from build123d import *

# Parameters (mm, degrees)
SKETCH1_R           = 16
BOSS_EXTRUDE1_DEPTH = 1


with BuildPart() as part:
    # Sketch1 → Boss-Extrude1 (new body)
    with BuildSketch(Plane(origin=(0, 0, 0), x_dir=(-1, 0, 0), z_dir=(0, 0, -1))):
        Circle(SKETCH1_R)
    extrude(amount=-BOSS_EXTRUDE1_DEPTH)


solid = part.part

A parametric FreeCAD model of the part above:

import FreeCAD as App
import Part
import Sketcher
from FreeCAD import Vector
Q = App.Units.Quantity

doc = App.newDocument("Part")
params = doc.addObject("Spreadsheet::Sheet", "Params")
for row, (alias, value) in enumerate([
    ("sketch1_diameter", "32 mm"),
    ("pad1_length", "1 mm"),
], start=1):
    params.set(f"A{row}", alias)
    params.set(f"B{row}", "=" + value)
    params.setAlias(f"B{row}", alias)

body = doc.addObject("PartDesign::Body", "Body")

sketch1 = body.newObject("Sketcher::SketchObject", "Sketch")
sketch1.AttachmentSupport = (doc.getObject("XY_Plane"), [""])
sketch1.MapMode = "FlatFace"
sketch1.addGeometry(Part.Circle(Vector(0, 0, 0), Vector(0, 0, 1), 16), False)
sketch1.addConstraint([
    Sketcher.Constraint("Coincident", 0, 3, -1, 1),
    Sketcher.Constraint("Diameter", 0, Q("32 mm")),
])
sketch1.setExpression("Constraints[1]", "Params.sketch1_diameter")
pad1 = body.newObject("PartDesign::Pad", "Pad")
pad1.Profile = sketch1
pad1.setExpression("Length", "Params.pad1_length")

doc.recompute()
